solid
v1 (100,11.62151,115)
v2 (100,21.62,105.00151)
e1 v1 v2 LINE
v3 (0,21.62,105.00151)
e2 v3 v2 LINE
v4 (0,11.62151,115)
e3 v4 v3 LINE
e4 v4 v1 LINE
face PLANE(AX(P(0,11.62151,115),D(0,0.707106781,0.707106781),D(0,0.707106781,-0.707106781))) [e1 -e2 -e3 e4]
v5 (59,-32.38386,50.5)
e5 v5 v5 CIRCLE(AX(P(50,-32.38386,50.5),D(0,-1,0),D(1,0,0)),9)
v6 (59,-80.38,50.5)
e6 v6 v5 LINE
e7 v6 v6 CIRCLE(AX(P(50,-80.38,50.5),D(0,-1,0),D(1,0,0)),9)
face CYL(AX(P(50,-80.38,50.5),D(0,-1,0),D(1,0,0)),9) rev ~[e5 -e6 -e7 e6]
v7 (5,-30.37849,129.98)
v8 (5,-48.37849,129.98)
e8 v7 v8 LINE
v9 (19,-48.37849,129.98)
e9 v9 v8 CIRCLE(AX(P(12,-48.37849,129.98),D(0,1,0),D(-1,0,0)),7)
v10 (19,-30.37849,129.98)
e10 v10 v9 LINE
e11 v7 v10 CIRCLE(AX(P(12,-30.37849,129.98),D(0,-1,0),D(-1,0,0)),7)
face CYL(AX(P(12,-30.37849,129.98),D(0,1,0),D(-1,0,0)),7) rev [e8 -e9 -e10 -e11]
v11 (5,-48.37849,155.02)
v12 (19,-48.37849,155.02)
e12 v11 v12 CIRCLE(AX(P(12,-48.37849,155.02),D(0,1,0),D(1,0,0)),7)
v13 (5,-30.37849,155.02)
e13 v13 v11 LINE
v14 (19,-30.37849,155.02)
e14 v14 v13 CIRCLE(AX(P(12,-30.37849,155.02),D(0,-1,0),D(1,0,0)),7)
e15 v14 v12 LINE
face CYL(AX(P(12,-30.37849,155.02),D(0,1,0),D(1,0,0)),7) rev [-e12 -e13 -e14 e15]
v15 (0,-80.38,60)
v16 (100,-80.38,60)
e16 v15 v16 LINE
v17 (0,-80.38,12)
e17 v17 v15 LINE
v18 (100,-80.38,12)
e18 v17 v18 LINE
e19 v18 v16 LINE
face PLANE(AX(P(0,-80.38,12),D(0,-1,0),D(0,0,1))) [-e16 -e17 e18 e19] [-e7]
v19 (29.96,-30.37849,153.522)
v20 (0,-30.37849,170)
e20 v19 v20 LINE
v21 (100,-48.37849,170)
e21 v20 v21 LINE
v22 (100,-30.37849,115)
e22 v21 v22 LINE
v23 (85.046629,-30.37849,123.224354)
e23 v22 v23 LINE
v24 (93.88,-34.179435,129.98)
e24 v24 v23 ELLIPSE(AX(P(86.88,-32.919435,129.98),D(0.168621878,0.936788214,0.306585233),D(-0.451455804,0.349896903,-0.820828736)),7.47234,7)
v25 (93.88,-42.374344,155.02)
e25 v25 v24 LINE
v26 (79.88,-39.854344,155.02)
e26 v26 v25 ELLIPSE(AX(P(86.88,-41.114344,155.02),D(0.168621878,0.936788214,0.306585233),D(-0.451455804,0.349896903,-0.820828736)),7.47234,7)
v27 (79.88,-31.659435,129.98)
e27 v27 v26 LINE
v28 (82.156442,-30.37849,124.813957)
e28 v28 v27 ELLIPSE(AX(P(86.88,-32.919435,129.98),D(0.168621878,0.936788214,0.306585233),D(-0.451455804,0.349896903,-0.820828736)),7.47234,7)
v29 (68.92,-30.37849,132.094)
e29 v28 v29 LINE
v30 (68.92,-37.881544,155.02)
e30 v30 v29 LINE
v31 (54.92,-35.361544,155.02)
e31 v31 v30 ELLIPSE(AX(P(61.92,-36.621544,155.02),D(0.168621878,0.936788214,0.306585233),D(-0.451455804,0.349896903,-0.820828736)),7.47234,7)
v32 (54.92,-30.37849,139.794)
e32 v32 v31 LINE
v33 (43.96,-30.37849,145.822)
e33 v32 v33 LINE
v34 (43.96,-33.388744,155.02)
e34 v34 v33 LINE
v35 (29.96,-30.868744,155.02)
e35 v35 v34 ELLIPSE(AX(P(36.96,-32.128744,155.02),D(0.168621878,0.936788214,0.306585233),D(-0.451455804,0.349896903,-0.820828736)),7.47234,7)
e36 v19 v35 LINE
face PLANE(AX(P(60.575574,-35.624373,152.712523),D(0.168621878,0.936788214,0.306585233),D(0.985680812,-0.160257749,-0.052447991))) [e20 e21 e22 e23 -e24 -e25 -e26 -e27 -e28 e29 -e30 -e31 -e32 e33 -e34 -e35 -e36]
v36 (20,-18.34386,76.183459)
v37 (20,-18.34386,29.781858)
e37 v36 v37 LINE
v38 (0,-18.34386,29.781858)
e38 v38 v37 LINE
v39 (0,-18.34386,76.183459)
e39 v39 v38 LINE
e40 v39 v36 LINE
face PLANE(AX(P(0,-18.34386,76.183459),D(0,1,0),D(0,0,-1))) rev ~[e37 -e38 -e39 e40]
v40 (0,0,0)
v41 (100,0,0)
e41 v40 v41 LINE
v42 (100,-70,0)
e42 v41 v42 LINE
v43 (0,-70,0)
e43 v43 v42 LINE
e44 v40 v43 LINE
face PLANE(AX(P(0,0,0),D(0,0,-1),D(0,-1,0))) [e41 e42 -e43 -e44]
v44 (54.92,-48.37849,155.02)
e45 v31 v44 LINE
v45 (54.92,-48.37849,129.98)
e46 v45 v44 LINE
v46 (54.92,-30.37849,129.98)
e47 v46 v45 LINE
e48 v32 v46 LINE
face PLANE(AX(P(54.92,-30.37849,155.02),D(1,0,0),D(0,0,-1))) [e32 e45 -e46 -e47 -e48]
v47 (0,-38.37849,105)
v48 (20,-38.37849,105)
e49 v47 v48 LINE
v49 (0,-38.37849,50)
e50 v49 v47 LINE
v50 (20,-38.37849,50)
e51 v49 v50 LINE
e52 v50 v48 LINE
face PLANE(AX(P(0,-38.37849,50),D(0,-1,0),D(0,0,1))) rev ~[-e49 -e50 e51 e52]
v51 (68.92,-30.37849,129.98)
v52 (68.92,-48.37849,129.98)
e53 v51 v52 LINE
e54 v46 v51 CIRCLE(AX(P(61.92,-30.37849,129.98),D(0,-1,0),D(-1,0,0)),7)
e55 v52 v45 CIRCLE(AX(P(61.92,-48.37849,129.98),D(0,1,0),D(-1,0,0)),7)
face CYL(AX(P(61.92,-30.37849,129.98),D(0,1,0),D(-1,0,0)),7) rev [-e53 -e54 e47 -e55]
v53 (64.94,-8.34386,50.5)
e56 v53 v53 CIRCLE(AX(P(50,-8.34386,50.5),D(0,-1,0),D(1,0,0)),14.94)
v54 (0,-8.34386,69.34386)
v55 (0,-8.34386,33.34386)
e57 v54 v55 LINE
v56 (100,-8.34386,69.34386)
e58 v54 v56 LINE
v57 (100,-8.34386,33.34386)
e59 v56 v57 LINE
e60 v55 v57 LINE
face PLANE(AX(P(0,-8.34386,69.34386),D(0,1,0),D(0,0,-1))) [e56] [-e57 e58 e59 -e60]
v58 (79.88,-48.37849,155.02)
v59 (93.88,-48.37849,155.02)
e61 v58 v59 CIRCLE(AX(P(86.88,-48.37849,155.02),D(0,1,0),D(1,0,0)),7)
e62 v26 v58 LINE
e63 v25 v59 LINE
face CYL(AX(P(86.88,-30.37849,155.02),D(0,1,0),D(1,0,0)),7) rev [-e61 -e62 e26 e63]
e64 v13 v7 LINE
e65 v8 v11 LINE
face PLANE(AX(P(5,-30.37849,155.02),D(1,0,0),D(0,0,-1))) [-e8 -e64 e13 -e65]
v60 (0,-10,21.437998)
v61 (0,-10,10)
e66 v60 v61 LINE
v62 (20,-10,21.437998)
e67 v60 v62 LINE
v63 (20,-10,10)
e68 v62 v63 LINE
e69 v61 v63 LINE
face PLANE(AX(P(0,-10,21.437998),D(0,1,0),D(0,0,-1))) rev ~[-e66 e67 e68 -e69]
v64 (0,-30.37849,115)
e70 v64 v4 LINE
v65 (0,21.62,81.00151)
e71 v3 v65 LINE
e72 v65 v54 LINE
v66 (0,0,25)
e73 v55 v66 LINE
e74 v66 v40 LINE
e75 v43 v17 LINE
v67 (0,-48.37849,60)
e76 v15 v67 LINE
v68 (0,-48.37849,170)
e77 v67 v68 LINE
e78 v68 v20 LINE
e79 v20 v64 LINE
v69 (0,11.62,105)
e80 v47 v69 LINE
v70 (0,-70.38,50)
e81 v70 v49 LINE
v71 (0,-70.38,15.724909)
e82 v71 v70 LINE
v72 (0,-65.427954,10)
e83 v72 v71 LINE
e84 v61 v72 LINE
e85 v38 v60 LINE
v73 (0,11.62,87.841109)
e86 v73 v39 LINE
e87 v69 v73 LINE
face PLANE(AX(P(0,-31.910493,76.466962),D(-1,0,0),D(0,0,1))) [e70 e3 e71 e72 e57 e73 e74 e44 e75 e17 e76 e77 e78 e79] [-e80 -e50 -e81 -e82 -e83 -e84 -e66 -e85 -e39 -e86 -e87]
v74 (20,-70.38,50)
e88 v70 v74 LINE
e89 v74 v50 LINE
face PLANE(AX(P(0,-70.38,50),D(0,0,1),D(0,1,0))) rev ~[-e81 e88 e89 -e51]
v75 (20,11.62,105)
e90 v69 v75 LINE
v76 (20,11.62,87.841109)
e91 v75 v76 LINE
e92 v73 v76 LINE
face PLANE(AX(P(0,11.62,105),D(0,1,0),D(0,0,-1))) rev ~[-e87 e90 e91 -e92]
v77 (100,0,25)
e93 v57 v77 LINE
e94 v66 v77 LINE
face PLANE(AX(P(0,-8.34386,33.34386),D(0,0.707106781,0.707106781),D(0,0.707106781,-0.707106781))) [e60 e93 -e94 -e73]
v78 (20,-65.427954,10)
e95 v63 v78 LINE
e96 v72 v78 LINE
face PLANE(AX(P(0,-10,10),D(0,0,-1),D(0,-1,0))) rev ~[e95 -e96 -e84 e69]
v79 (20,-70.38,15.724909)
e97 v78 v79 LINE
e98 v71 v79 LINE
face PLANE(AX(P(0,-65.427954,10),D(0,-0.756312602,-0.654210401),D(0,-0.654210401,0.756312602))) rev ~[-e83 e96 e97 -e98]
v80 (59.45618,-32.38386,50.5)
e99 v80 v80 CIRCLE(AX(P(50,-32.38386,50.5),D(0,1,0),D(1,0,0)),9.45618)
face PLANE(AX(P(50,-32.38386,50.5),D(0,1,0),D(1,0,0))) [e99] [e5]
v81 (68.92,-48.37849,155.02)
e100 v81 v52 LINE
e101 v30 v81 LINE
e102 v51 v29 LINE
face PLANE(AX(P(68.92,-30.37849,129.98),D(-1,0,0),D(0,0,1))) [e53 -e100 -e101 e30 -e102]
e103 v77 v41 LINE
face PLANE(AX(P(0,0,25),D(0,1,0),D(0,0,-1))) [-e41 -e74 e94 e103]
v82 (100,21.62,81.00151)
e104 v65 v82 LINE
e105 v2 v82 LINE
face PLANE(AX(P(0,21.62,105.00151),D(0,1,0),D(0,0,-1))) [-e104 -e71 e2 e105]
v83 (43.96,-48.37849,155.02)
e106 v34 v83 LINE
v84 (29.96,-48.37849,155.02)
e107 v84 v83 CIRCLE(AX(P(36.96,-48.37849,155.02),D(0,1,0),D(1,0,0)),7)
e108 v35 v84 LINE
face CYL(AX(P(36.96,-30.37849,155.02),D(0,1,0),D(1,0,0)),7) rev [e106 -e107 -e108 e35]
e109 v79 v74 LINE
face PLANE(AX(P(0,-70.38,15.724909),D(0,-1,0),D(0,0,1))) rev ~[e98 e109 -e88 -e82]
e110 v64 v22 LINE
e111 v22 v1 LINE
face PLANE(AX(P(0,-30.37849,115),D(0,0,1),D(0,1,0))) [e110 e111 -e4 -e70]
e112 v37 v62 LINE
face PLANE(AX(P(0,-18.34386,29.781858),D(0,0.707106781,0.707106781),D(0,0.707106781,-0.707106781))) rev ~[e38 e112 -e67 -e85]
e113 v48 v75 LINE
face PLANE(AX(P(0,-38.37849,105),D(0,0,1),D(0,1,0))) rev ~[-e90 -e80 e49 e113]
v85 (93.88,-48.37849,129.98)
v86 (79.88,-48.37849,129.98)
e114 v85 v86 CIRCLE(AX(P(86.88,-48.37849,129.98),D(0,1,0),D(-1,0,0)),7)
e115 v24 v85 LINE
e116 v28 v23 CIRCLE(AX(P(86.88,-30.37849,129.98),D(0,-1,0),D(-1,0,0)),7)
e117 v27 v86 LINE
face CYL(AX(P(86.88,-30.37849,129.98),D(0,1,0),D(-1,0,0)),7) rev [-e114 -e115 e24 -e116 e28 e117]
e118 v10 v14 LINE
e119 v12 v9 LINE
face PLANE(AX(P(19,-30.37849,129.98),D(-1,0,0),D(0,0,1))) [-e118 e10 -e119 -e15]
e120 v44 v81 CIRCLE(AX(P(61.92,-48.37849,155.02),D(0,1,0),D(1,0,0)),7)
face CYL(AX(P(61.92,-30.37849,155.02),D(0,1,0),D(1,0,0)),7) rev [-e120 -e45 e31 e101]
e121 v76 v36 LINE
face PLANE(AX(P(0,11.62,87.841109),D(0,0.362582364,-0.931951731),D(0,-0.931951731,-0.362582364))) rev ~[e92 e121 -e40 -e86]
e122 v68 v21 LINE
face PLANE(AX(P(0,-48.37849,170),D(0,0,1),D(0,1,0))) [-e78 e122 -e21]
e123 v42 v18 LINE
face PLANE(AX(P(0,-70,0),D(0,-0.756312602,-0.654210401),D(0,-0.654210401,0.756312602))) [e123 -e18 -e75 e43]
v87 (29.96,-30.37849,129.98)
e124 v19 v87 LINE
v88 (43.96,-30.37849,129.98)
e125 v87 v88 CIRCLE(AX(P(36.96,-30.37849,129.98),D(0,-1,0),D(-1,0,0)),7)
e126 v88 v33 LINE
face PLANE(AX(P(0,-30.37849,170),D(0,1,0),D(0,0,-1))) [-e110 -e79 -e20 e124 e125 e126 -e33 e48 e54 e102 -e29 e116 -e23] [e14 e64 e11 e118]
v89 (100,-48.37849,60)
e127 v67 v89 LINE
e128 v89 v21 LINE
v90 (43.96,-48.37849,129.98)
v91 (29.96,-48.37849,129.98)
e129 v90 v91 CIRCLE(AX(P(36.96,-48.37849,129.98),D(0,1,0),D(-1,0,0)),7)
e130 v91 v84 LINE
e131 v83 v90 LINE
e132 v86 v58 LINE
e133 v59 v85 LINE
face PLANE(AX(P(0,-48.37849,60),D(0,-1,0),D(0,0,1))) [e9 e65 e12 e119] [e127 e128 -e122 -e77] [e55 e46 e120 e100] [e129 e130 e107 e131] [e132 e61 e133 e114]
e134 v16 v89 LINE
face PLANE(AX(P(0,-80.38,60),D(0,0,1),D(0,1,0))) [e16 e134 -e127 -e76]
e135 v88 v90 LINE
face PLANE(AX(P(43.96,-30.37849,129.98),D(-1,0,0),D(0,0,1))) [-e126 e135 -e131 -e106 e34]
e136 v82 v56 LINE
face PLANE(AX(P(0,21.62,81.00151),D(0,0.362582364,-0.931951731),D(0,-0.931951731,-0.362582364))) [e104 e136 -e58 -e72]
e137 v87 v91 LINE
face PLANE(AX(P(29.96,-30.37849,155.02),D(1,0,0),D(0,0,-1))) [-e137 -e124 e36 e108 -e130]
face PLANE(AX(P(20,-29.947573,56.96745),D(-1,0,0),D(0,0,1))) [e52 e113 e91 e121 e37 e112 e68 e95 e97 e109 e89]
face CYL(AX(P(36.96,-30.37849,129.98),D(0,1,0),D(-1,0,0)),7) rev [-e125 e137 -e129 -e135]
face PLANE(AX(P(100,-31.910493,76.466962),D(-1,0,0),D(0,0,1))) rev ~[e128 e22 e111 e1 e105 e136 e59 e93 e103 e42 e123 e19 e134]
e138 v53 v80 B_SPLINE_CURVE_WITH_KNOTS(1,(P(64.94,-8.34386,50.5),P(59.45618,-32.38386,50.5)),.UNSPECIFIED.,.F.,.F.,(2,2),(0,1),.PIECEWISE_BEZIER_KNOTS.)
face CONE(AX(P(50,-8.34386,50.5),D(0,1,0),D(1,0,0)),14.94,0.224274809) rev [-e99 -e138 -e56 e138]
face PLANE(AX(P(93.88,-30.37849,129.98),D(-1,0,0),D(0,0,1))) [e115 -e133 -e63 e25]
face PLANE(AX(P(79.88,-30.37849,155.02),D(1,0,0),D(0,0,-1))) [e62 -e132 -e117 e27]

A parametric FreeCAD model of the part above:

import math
import FreeCAD as App
import Part
import Sketcher
from FreeCAD import Vector
Q = App.Units.Quantity


def add_polygon(sketch, points):
    """Adds a closed chain of lines whose ends are joined by coincident constraints."""
    first, n = sketch.GeometryCount, len(points)
    for a, b in zip(points, points[1:] + points[:1]):
        sketch.addGeometry(Part.LineSegment(App.Vector(*a, 0), App.Vector(*b, 0)), False)
    for i in range(n):
        sketch.addConstraint(Sketcher.Constraint("Coincident", first + i, 2, first + (i + 1) % n, 1))

doc = App.newDocument("Part")
body = doc.addObject("PartDesign::Body", "Body")

# Sketch on YZ plane
sketch1 = doc.addObject("Sketcher::SketchObject", "Sketch")
body.addObject(sketch1)
sketch1.AttachmentSupport = (doc.YZ_Plane, [""])
sketch1.MapMode = "FlatFace"
add_polygon(sketch1, [(-70, 0), (0, 0), (0, 25), (-8.34386, 33.34386), (-8.34386, 69.34386), (21.62, 81.00151), (21.62, 105.00151), (11.62151, 115), (-30.37849, 115), (-30.37849, 170), (-48.37849, 170), (-48.37849, 60), (-80.38, 60), (-80.38, 12)])  # lines 0-13
sketch1.addConstraint(Sketcher.Constraint("Horizontal", 0))
sketch1.addConstraint(Sketcher.Constraint("Vertical", 1))
sketch1.addConstraint(Sketcher.Constraint("Vertical", 3))
sketch1.addConstraint(Sketcher.Constraint("Vertical", 5))
sketch1.addConstraint(Sketcher.Constraint("Horizontal", 7))
sketch1.addConstraint(Sketcher.Constraint("Vertical", 8))
sketch1.addConstraint(Sketcher.Constraint("Horizontal", 9))
sketch1.addConstraint(Sketcher.Constraint("Vertical", 10))
sketch1.addConstraint(Sketcher.Constraint("Horizontal", 11))
sketch1.addConstraint(Sketcher.Constraint("Vertical", 12))
sketch1.addConstraint(Sketcher.Constraint("Coincident", 0, 2, -1, 1))
sketch1.addConstraint(Sketcher.Constraint("Parallel", 2, 6))
sketch1.addConstraint(Sketcher.Constraint("DistanceX", 0, 1, 0, 2, Q("70 mm")))
sketch1.addConstraint(Sketcher.Constraint("DistanceX", 7, 2, 7, 1, Q("42 mm")))
sketch1.addConstraint(Sketcher.Constraint("DistanceX", 9, 2, 9, 1, Q("18 mm")))
sketch1.addConstraint(Sketcher.Constraint("DistanceY", 1, 1, 1, 2, Q("25 mm")))
sketch1.addConstraint(Sketcher.Constraint("DistanceY", 3, 1, 3, 2, Q("36 mm")))
sketch1.addConstraint(Sketcher.Constraint("DistanceY", 5, 1, 5, 2, Q("24 mm")))
sketch1.addConstraint(Sketcher.Constraint("DistanceY", 8, 1, 8, 2, Q("55 mm")))
sketch1.addConstraint(Sketcher.Constraint("DistanceY", 10, 2, 10, 1, Q("110 mm")))
sketch1.addConstraint(Sketcher.Constraint("DistanceY", 12, 2, 12, 1, Q("48 mm")))
sketch1.addConstraint(Sketcher.Constraint("Angle", 2, Q("135 deg")))
sketch1.addConstraint(Sketcher.Constraint("DistanceY", -1, 1, 6, 2, Q("115 mm")))
sketch1.addConstraint(Sketcher.Constraint("Distance", 2, Q("11.8 mm")))
sketch1.addConstraint(Sketcher.Constraint("Distance", 6, Q("14.14 mm")))
sketch1.addConstraint(Sketcher.Constraint("DistanceX", -1, 1, 4, 2, Q("21.62 mm")))
sketch1.addConstraint(Sketcher.Constraint("DistanceX", 11, 2, -1, 1, Q("80.38 mm")))
pad1 = doc.addObject("PartDesign::Pad", "Pad")
body.addObject(pad1)
pad1.Profile = sketch1
pad1.Length = 100

# Sketch on XZ plane
sketch2 = doc.addObject("Sketcher::SketchObject", "Sketch001")
body.addObject(sketch2)
sketch2.AttachmentSupport = (doc.XZ_Plane, [""])
sketch2.MapMode = "FlatFace"
sketch2.AttachmentOffset = App.Placement(Vector(0, 0, 30.37849), App.Rotation())
sketch2.addGeometry(Part.LineSegment(Vector(5, 129.98, 0), Vector(5, 155.02, 0)), False)
sketch2.addGeometry(Part.ArcOfCircle(Part.Circle(Vector(12, 155.02, 0), Vector(0, 0, 1), 7), math.radians(0), math.radians(180)), False)
sketch2.addGeometry(Part.LineSegment(Vector(19, 155.02, 0), Vector(19, 129.98, 0)), False)
sketch2.addGeometry(Part.ArcOfCircle(Part.Circle(Vector(12, 129.98, 0), Vector(0, 0, 1), 7), math.radians(180), math.radians(360)), False)
sketch2.addGeometry(Part.LineSegment(Vector(29.96, 129.98, 0), Vector(29.96, 155.02, 0)), False)
sketch2.addGeometry(Part.ArcOfCircle(Part.Circle(Vector(36.96, 155.02, 0), Vector(0, 0, 1), 7), math.radians(0), math.radians(180)), False)
sketch2.addGeometry(Part.LineSegment(Vector(43.96, 155.02, 0), Vector(43.96, 129.98, 0)), False)
sketch2.addGeometry(Part.ArcOfCircle(Part.Circle(Vector(36.96, 129.98, 0), Vector(0, 0, 1), 7), math.radians(180), math.radians(360)), False)
sketch2.addGeometry(Part.LineSegment(Vector(54.92, 129.98, 0), Vector(54.92, 155.02, 0)), False)
sketch2.addGeometry(Part.ArcOfCircle(Part.Circle(Vector(61.92, 155.02, 0), Vector(0, 0, 1), 7), math.radians(0), math.radians(180)), False)
sketch2.addGeometry(Part.LineSegment(Vector(68.92, 155.02, 0), Vector(68.92, 129.98, 0)), False)
sketch2.addGeometry(Part.ArcOfCircle(Part.Circle(Vector(61.92, 129.98, 0), Vector(0, 0, 1), 7), math.radians(180), math.radians(360)), False)
sketch2.addGeometry(Part.LineSegment(Vector(79.88, 129.98, 0), Vector(79.88, 155.02, 0)), False)
sketch2.addGeometry(Part.ArcOfCircle(Part.Circle(Vector(86.88, 155.02, 0), Vector(0, 0, 1), 7), math.radians(0), math.radians(180)), False)
sketch2.addGeometry(Part.LineSegment(Vector(93.88, 155.02, 0), Vector(93.88, 129.98, 0)), False)
sketch2.addGeometry(Part.ArcOfCircle(Part.Circle(Vector(86.88, 129.98, 0), Vector(0, 0, 1), 7), math.radians(180), math.radians(360)), False)
sketch2.addConstraint(Sketcher.Constraint("Tangent", 0, 2, 1, 2))
sketch2.addConstraint(Sketcher.Constraint("Tangent", 1, 1, 2, 1))
sketch2.addConstraint(Sketcher.Constraint("Tangent", 2, 2, 3, 2))
sketch2.addConstraint(Sketcher.Constraint("Tangent", 3, 1, 0, 1))
sketch2.addConstraint(Sketcher.Constraint("Tangent", 4, 2, 5, 2))
sketch2.addConstraint(Sketcher.Constraint("Tangent", 5, 1, 6, 1))
sketch2.addConstraint(Sketcher.Constraint("Tangent", 6, 2, 7, 2))
sketch2.addConstraint(Sketcher.Constraint("Tangent", 7, 1, 4, 1))
sketch2.addConstraint(Sketcher.Constraint("Tangent", 8, 2, 9, 2))
sketch2.addConstraint(Sketcher.Constraint("Tangent", 9, 1, 10, 1))
sketch2.addConstraint(Sketcher.Constraint("Tangent", 10, 2, 11, 2))
sketch2.addConstraint(Sketcher.Constraint("Tangent", 11, 1, 8, 1))
sketch2.addConstraint(Sketcher.Constraint("Tangent", 12, 2, 13, 2))
sketch2.addConstraint(Sketcher.Constraint("Tangent", 13, 1, 14, 1))
sketch2.addConstraint(Sketcher.Constraint("Tangent", 14, 2, 15, 2))
sketch2.addConstraint(Sketcher.Constraint("Tangent", 15, 1, 12, 1))
sketch2.addConstraint(Sketcher.Constraint("Vertical", 0))
sketch2.addConstraint(Sketcher.Constraint("Vertical", 2))
sketch2.addConstraint(Sketcher.Constraint("Vertical", 4))
sketch2.addConstraint(Sketcher.Constraint("Vertical", 6))
sketch2.addConstraint(Sketcher.Constraint("Vertical", 8))
sketch2.addConstraint(Sketcher.Constraint("Vertical", 10))
sketch2.addConstraint(Sketcher.Constraint("Vertical", 12))
sketch2.addConstraint(Sketcher.Constraint("Vertical", 14))
sketch2.addConstraint(Sketcher.Constraint("Equal", 3, 5))
sketch2.addConstraint(Sketcher.Constraint("Equal", 7, 9))
sketch2.addConstraint(Sketcher.Constraint("Equal", 11, 13))
sketch2.addConstraint(Sketcher.Constraint("Horizontal", 1, 3, 5, 3))
sketch2.addConstraint(Sketcher.Constraint("Horizontal", 3, 3, 7, 3))
sketch2.addConstraint(Sketcher.Constraint("Horizontal", 5, 3, 9, 3))
sketch2.addConstraint(Sketcher.Constraint("Horizontal", 7, 3, 11, 3))
sketch2.addConstraint(Sketcher.Constraint("Horizontal", 9, 3, 13, 3))
sketch2.addConstraint(Sketcher.Constraint("Horizontal", 11, 3, 15, 3))
sketch2.addConstraint(Sketcher.Constraint("Radius", 1, Q("7 mm")))
sketch2.addConstraint(Sketcher.Constraint("DistanceX", -1, 1, 1, 3, Q("12 mm")))
sketch2.addConstraint(Sketcher.Constraint("DistanceY", 0, 1, 0, 2, Q("25.04 mm")))
sketch2.addConstraint(Sketcher.Constraint("DistanceY", -1, 1, 1, 3, Q("155.02 mm")))
sketch2.addConstraint(Sketcher.Constraint("DistanceX", -1, 1, 5, 3, Q("36.96 mm")))
sketch2.addConstraint(Sketcher.Constraint("DistanceX", -1, 1, 9, 3, Q("61.92 mm")))
sketch2.addConstraint(Sketcher.Constraint("DistanceX", -1, 1, 13, 3, Q("86.88 mm")))
pocket1 = doc.addObject("PartDesign::Pocket", "Pocket")
body.addObject(pocket1)
pocket1.Profile = sketch2
pocket1.Type = "ThroughAll"
pocket1.Reversed = True

# Sketch on an angled plane
sketch3 = doc.addObject("Sketcher::SketchObject", "Sketch002")
body.addObject(sketch3)
sketch3.Placement = App.Placement(Vector(3.989809, 22.165607, 7.254199), App.Rotation(Vector(0.985680812, -0.160257749, -0.052447991), Vector(0, 0.31103906, -0.95039713), Vector(0.168621878, 0.936788214, 0.306585233), "ZXY"))
add_polygon(sketch3, [(-4.04777, -171.016409), (97.404951, -176.615112), (97.404951, -118.744567)])  # lines 0-2
sketch3.addConstraint(Sketcher.Constraint("Vertical", 1))
sketch3.addConstraint(Sketcher.Constraint("DistanceY", 1, 1, 1, 2, Q("57.870545 mm")))
sketch3.addConstraint(Sketcher.Constraint("DistanceX", -1, 1, 0, 2, Q("97.404951 mm")))
sketch3.addConstraint(Sketcher.Constraint("DistanceX", 2, 2, -1, 1, Q("4.04777 mm")))
sketch3.addConstraint(Sketcher.Constraint("DistanceY", 2, 2, -1, 1, Q("171.016409 mm")))
sketch3.addConstraint(Sketcher.Constraint("Distance", 0, Q("101.607086 mm")))
pocket2 = doc.addObject("PartDesign::Pocket", "Pocket001")
body.addObject(pocket2)
pocket2.Profile = sketch3
pocket2.Length = 87
pocket2.Reversed = True

# Sketch on YZ plane
sketch4 = doc.addObject("Sketcher::SketchObject", "Sketch003")
body.addObject(sketch4)
sketch4.AttachmentSupport = (doc.YZ_Plane, [""])
sketch4.MapMode = "FlatFace"
add_polygon(sketch4, [(11.62, 105), (11.62, 87.841109), (-18.34386, 76.183459), (-18.34386, 29.781858), (-10, 21.437998), (-10, 10), (-65.427954, 10), (-70.38, 15.724909), (-70.38, 50), (-38.37849, 50), (-38.37849, 105)])  # lines 0-10
sketch4.addConstraint(Sketcher.Constraint("Vertical", 0))
sketch4.addConstraint(Sketcher.Constraint("Vertical", 2))
sketch4.addConstraint(Sketcher.Constraint("Vertical", 4))
sketch4.addConstraint(Sketcher.Constraint("Horizontal", 5))
sketch4.addConstraint(Sketcher.Constraint("Vertical", 7))
sketch4.addConstraint(Sketcher.Constraint("Horizontal", 8))
sketch4.addConstraint(Sketcher.Constraint("Vertical", 9))
sketch4.addConstraint(Sketcher.Constraint("Horizontal", 10))
sketch4.addConstraint(Sketcher.Constraint("DistanceY", 9, 1, 9, 2, Q("55 mm")))
sketch4.addConstraint(Sketcher.Constraint("Angle", 3, Q("-45 deg")))
sketch4.addConstraint(Sketcher.Constraint("DistanceX", 3, 2, -1, 1, Q("10 mm")))
sketch4.addConstraint(Sketcher.Constraint("DistanceY", -1, 1, 4, 2, Q("10 mm")))
sketch4.addConstraint(Sketcher.Constraint("DistanceY", -1, 1, 7, 2, Q("50 mm")))
sketch4.addConstraint(Sketcher.Constraint("Distance", 3, Q("11.8 mm")))
sketch4.addConstraint(Sketcher.Constraint("DistanceX", -1, 1, 0, 2, Q("11.62 mm")))
sketch4.addConstraint(Sketcher.Constraint("DistanceX", 6, 2, -1, 1, Q("70.38 mm")))
sketch4.addConstraint(Sketcher.Constraint("DistanceY", 2, 2, 2, 1, Q("46.401601 mm")))
sketch4.addConstraint(Sketcher.Constraint("Distance", 6, Q("7.569501 mm")))
sketch4.addConstraint(Sketcher.Constraint("DistanceX", 8, 1, 8, 2, Q("32.00151 mm")))
sketch4.addConstraint(Sketcher.Constraint("DistanceY", 0, 2, 0, 1, Q("17.158891 mm")))
sketch4.addConstraint(Sketcher.Constraint("DistanceY", 7, 1, 7, 2, Q("34.275091 mm")))
sketch4.addConstraint(Sketcher.Constraint("Distance", 1, Q("32.15173 mm")))
pocket3 = doc.addObject("PartDesign::Pocket", "Pocket002")
body.addObject(pocket3)
pocket3.Profile = sketch4
pocket3.Length = 20
pocket3.Reversed = True

# Sketch on XZ plane
sketch5 = doc.addObject("Sketcher::SketchObject", "Sketch004")
body.addObject(sketch5)
sketch5.AttachmentSupport = (doc.XZ_Plane, [""])
sketch5.MapMode = "FlatFace"
sketch5.AttachmentOffset = App.Placement(Vector(0, 0, 80.38), App.Rotation())
sketch5.addGeometry(Part.Circle(Vector(50, 50.5, 0), Vector(0, 0, 1), 9), False)
sketch5.addConstraint(Sketcher.Constraint("Diameter", 0, Q("18 mm")))
sketch5.addConstraint(Sketcher.Constraint("DistanceX", -1, 1, 0, 3, Q("50 mm")))
sketch5.addConstraint(Sketcher.Constraint("DistanceY", -1, 1, 0, 3, Q("50.5 mm")))
pocket4 = doc.addObject("PartDesign::Pocket", "Pocket003")
body.addObject(pocket4)
pocket4.Profile = sketch5
pocket4.Type = "UpToFirst"

# Sketch on XZ plane
sketch6 = doc.addObject("Sketcher::SketchObject", "Sketch005")
body.addObject(sketch6)
sketch6.AttachmentSupport = (doc.XZ_Plane, [""])
sketch6.MapMode = "FlatFace"
sketch6.AttachmentOffset = App.Placement(Vector(0, 0, 8.34386), App.Rotation())
sketch6.addGeometry(Part.Circle(Vector(50, 50.5, 0), Vector(0, 0, 1), 14.94), False)
sketch6.addConstraint(Sketcher.Constraint("Diameter", 0, Q("29.88 mm")))
sketch6.addConstraint(Sketcher.Constraint("DistanceX", -1, 1, 0, 3, Q("50 mm")))
sketch6.addConstraint(Sketcher.Constraint("DistanceY", -1, 1, 0, 3, Q("50.5 mm")))
pocket5 = doc.addObject("PartDesign::Pocket", "Pocket004")
body.addObject(pocket5)
pocket5.Profile = sketch6
pocket5.Length = 24.04
pocket5.Reversed = True
pocket5.TaperAngle = -12.85

doc.recompute()
